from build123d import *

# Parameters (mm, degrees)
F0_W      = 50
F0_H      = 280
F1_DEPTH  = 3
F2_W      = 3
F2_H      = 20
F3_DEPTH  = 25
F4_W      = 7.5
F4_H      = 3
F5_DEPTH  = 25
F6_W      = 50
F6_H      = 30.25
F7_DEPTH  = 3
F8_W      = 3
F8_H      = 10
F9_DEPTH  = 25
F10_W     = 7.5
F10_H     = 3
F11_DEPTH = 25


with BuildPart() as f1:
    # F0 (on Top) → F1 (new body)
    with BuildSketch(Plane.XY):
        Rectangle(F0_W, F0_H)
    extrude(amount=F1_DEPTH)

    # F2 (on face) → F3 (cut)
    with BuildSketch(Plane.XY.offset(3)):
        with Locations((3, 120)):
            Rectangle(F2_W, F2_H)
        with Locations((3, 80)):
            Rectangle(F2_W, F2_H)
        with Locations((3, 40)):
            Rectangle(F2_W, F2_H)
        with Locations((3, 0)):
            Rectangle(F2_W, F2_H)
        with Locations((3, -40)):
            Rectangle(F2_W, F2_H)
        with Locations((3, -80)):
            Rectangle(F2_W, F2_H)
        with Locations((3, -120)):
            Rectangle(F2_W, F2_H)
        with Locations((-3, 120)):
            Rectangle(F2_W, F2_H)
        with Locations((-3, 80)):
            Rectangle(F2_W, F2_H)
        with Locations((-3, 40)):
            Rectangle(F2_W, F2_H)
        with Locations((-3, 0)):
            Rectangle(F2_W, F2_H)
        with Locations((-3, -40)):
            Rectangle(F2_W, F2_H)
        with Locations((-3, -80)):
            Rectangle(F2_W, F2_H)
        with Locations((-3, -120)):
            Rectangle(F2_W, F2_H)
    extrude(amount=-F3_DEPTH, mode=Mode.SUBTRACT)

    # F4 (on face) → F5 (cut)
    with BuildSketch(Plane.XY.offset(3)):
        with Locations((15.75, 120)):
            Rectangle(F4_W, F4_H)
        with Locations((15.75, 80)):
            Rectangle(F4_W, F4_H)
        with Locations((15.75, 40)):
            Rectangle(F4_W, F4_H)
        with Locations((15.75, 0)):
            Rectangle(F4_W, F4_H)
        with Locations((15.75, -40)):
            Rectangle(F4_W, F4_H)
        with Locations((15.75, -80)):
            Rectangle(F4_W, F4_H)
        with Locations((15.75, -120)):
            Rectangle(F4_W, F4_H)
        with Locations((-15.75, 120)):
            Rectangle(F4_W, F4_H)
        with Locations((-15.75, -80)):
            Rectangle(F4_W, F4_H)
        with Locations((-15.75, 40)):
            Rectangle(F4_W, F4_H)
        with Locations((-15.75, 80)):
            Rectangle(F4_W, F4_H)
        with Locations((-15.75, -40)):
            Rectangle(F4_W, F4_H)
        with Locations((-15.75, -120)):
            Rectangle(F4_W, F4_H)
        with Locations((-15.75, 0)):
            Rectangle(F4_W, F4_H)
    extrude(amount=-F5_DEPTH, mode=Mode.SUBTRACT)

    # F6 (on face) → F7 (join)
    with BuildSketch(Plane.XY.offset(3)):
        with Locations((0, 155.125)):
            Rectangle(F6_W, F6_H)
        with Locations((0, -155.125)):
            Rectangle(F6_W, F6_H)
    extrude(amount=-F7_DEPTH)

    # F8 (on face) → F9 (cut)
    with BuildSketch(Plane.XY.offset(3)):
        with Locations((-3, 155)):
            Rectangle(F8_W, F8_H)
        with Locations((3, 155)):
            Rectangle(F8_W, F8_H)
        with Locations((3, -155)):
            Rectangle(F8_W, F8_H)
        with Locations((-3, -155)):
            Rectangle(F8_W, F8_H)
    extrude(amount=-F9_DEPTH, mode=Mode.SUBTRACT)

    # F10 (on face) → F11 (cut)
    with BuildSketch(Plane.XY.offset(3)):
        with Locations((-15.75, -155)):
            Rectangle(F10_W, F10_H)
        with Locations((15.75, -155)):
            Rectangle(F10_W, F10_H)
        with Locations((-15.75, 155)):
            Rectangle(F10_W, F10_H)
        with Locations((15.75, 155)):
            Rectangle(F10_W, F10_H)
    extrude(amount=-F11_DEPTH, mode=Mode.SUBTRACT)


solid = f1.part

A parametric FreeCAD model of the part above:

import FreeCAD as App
import Part
import Sketcher
from FreeCAD import Vector
Q = App.Units.Quantity

doc = App.newDocument("Part")
body = doc.addObject("PartDesign::Body", "Body")

# Sketch on XY plane
sketch1 = body.newObject("Sketcher::SketchObject", "Sketch")
sketch1.AttachmentSupport = (doc.getObject("XY_Plane"), [""])
sketch1.MapMode = "FlatFace"
sketch1.addGeometry([
    Part.LineSegment(Vector(-25, 140, 0), Vector(-25, -140, 0)),
    Part.LineSegment(Vector(-25, -140, 0), Vector(25, -140, 0)),
    Part.LineSegment(Vector(25, -140, 0), Vector(25, 140, 0)),
    Part.LineSegment(Vector(25, 140, 0), Vector(-25, 140, 0)),
], False)
sketch1.addConstraint([
    Sketcher.Constraint("Coincident", 0, 2, 1, 1),
    Sketcher.Constraint("Coincident", 1, 2, 2, 1),
    Sketcher.Constraint("Coincident", 2, 2, 3, 1),
    Sketcher.Constraint("Coincident", 3, 2, 0, 1),
    Sketcher.Constraint("Vertical", 0),
    Sketcher.Constraint("Horizontal", 1),
    Sketcher.Constraint("Vertical", 2),
    Sketcher.Constraint("Horizontal", 3),
    Sketcher.Constraint("Symmetric", 0, 2, 2, 2, -1, 1),
    Sketcher.Constraint("DistanceX", 1, 1, 1, 2, Q("50 mm")),
    Sketcher.Constraint("DistanceY", 0, 2, 0, 1, Q("280 mm")),
])
pad1 = body.newObject("PartDesign::Pad", "Pad")
pad1.Profile = sketch1
pad1.Length = 3

# Sketch on XY plane
sketch2 = body.newObject("Sketcher::SketchObject", "Sketch001")
sketch2.AttachmentSupport = (doc.getObject("XY_Plane"), [""])
sketch2.MapMode = "FlatFace"
sketch2.AttachmentOffset = App.Placement(Vector(0, 0, 3), App.Rotation())
sketch2.addGeometry([
    Part.LineSegment(Vector(1.5, 130, 0), Vector(1.5, 110, 0)),  # 0
    Part.LineSegment(Vector(1.5, 110, 0), Vector(4.5, 110, 0)),  # 1
    Part.LineSegment(Vector(4.5, 110, 0), Vector(4.5, 130, 0)),  # 2
    Part.LineSegment(Vector(4.5, 130, 0), Vector(1.5, 130, 0)),  # 3
    Part.LineSegment(Vector(1.5, 90, 0), Vector(1.5, 70, 0)),  # 4
    Part.LineSegment(Vector(1.5, 70, 0), Vector(4.5, 70, 0)),  # 5
    Part.LineSegment(Vector(4.5, 70, 0), Vector(4.5, 90, 0)),  # 6
    Part.LineSegment(Vector(4.5, 90, 0), Vector(1.5, 90, 0)),  # 7
    Part.LineSegment(Vector(1.5, 50, 0), Vector(1.5, 30, 0)),  # 8
    Part.LineSegment(Vector(1.5, 30, 0), Vector(4.5, 30, 0)),  # 9
    Part.LineSegment(Vector(4.5, 30, 0), Vector(4.5, 50, 0)),  # 10
    Part.LineSegment(Vector(4.5, 50, 0), Vector(1.5, 50, 0)),  # 11
    Part.LineSegment(Vector(1.5, 10, 0), Vector(1.5, -10, 0)),  # 12
    Part.LineSegment(Vector(1.5, -10, 0), Vector(4.5, -10, 0)),  # 13
    Part.LineSegment(Vector(4.5, -10, 0), Vector(4.5, 10, 0)),  # 14
    Part.LineSegment(Vector(4.5, 10, 0), Vector(1.5, 10, 0)),  # 15
    Part.LineSegment(Vector(1.5, -30, 0), Vector(1.5, -50, 0)),  # 16
    Part.LineSegment(Vector(1.5, -50, 0), Vector(4.5, -50, 0)),  # 17
    Part.LineSegment(Vector(4.5, -50, 0), Vector(4.5, -30, 0)),  # 18
    Part.LineSegment(Vector(4.5, -30, 0), Vector(1.5, -30, 0)),  # 19
    Part.LineSegment(Vector(1.5, -70, 0), Vector(1.5, -90, 0)),  # 20
    Part.LineSegment(Vector(1.5, -90, 0), Vector(4.5, -90, 0)),  # 21
    Part.LineSegment(Vector(4.5, -90, 0), Vector(4.5, -70, 0)),  # 22
    Part.LineSegment(Vector(4.5, -70, 0), Vector(1.5, -70, 0)),  # 23
    Part.LineSegment(Vector(1.5, -110, 0), Vector(1.5, -130, 0)),  # 24
    Part.LineSegment(Vector(1.5, -130, 0), Vector(4.5, -130, 0)),  # 25
    Part.LineSegment(Vector(4.5, -130, 0), Vector(4.5, -110, 0)),  # 26
    Part.LineSegment(Vector(4.5, -110, 0), Vector(1.5, -110, 0)),  # 27
    Part.LineSegment(Vector(-4.5, 130, 0), Vector(-4.5, 110, 0)),  # 28
    Part.LineSegment(Vector(-4.5, 110, 0), Vector(-1.5, 110, 0)),  # 29
    Part.LineSegment(Vector(-1.5, 110, 0), Vector(-1.5, 130, 0)),  # 30
    Part.LineSegment(Vector(-1.5, 130, 0), Vector(-4.5, 130, 0)),  # 31
    Part.LineSegment(Vector(-4.5, 90, 0), Vector(-4.5, 70, 0)),  # 32
    Part.LineSegment(Vector(-4.5, 70, 0), Vector(-1.5, 70, 0)),  # 33
    Part.LineSegment(Vector(-1.5, 70, 0), Vector(-1.5, 90, 0)),  # 34
    Part.LineSegment(Vector(-1.5, 90, 0), Vector(-4.5, 90, 0)),  # 35
    Part.LineSegment(Vector(-4.5, 50, 0), Vector(-4.5, 30, 0)),  # 36
    Part.LineSegment(Vector(-4.5, 30, 0), Vector(-1.5, 30, 0)),  # 37
    Part.LineSegment(Vector(-1.5, 30, 0), Vector(-1.5, 50, 0)),  # 38
    Part.LineSegment(Vector(-1.5, 50, 0), Vector(-4.5, 50, 0)),  # 39
    Part.LineSegment(Vector(-4.5, 10, 0), Vector(-4.5, -10, 0)),  # 40
    Part.LineSegment(Vector(-4.5, -10, 0), Vector(-1.5, -10, 0)),  # 41
    Part.LineSegment(Vector(-1.5, -10, 0), Vector(-1.5, 10, 0)),  # 42
    Part.LineSegment(Vector(-1.5, 10, 0), Vector(-4.5, 10, 0)),  # 43
    Part.LineSegment(Vector(-4.5, -30, 0), Vector(-4.5, -50, 0)),  # 44
    Part.LineSegment(Vector(-4.5, -50, 0), Vector(-1.5, -50, 0)),  # 45
    Part.LineSegment(Vector(-1.5, -50, 0), Vector(-1.5, -30, 0)),  # 46
    Part.LineSegment(Vector(-1.5, -30, 0), Vector(-4.5, -30, 0)),  # 47
    Part.LineSegment(Vector(-4.5, -70, 0), Vector(-4.5, -90, 0)),  # 48
    Part.LineSegment(Vector(-4.5, -90, 0), Vector(-1.5, -90, 0)),  # 49
    Part.LineSegment(Vector(-1.5, -90, 0), Vector(-1.5, -70, 0)),  # 50
    Part.LineSegment(Vector(-1.5, -70, 0), Vector(-4.5, -70, 0)),  # 51
    Part.LineSegment(Vector(-4.5, -110, 0), Vector(-4.5, -130, 0)),  # 52
    Part.LineSegment(Vector(-4.5, -130, 0), Vector(-1.5, -130, 0)),  # 53
    Part.LineSegment(Vector(-1.5, -130, 0), Vector(-1.5, -110, 0)),  # 54
    Part.LineSegment(Vector(-1.5, -110, 0), Vector(-4.5, -110, 0)),  # 55
], False)
sketch2.addConstraint([
    Sketcher.Constraint("Coincident", 0, 2, 1, 1),
    Sketcher.Constraint("Coincident", 1, 2, 2, 1),
    Sketcher.Constraint("Coincident", 2, 2, 3, 1),
    Sketcher.Constraint("Coincident", 3, 2, 0, 1),
    Sketcher.Constraint("Coincident", 4, 2, 5, 1),
    Sketcher.Constraint("Coincident", 5, 2, 6, 1),
    Sketcher.Constraint("Coincident", 6, 2, 7, 1),
    Sketcher.Constraint("Coincident", 7, 2, 4, 1),
    Sketcher.Constraint("Coincident", 8, 2, 9, 1),
    Sketcher.Constraint("Coincident", 9, 2, 10, 1),
    Sketcher.Constraint("Coincident", 10, 2, 11, 1),
    Sketcher.Constraint("Coincident", 11, 2, 8, 1),
    Sketcher.Constraint("Coincident", 12, 2, 13, 1),
    Sketcher.Constraint("Coincident", 13, 2, 14, 1),
    Sketcher.Constraint("Coincident", 14, 2, 15, 1),
    Sketcher.Constraint("Coincident", 15, 2, 12, 1),
    Sketcher.Constraint("Coincident", 16, 2, 17, 1),
    Sketcher.Constraint("Coincident", 17, 2, 18, 1),
    Sketcher.Constraint("Coincident", 18, 2, 19, 1),
    Sketcher.Constraint("Coincident", 19, 2, 16, 1),
    Sketcher.Constraint("Coincident", 20, 2, 21, 1),
    Sketcher.Constraint("Coincident", 21, 2, 22, 1),
    Sketcher.Constraint("Coincident", 22, 2, 23, 1),
    Sketcher.Constraint("Coincident", 23, 2, 20, 1),
    Sketcher.Constraint("Coincident", 24, 2, 25, 1),
    Sketcher.Constraint("Coincident", 25, 2, 26, 1),
    Sketcher.Constraint("Coincident", 26, 2, 27, 1),
    Sketcher.Constraint("Coincident", 27, 2, 24, 1),
    Sketcher.Constraint("Coincident", 28, 2, 29, 1),
    Sketcher.Constraint("Coincident", 29, 2, 30, 1),
    Sketcher.Constraint("Coincident", 30, 2, 31, 1),
    Sketcher.Constraint("Coincident", 31, 2, 28, 1),
    Sketcher.Constraint("Coincident", 32, 2, 33, 1),
    Sketcher.Constraint("Coincident", 33, 2, 34, 1),
    Sketcher.Constraint("Coincident", 34, 2, 35, 1),
    Sketcher.Constraint("Coincident", 35, 2, 32, 1),
    Sketcher.Constraint("Coincident", 36, 2, 37, 1),
    Sketcher.Constraint("Coincident", 37, 2, 38, 1),
    Sketcher.Constraint("Coincident", 38, 2, 39, 1),
    Sketcher.Constraint("Coincident", 39, 2, 36, 1),
    Sketcher.Constraint("Coincident", 40, 2, 41, 1),
    Sketcher.Constraint("Coincident", 41, 2, 42, 1),
    Sketcher.Constraint("Coincident", 42, 2, 43, 1),
    Sketcher.Constraint("Coincident", 43, 2, 40, 1),
    Sketcher.Constraint("Coincident", 44, 2, 45, 1),
    Sketcher.Constraint("Coincident", 45, 2, 46, 1),
    Sketcher.Constraint("Coincident", 46, 2, 47, 1),
    Sketcher.Constraint("Coincident", 47, 2, 44, 1),
    Sketcher.Constraint("Coincident", 48, 2, 49, 1),
    Sketcher.Constraint("Coincident", 49, 2, 50, 1),
    Sketcher.Constraint("Coincident", 50, 2, 51, 1),
    Sketcher.Constraint("Coincident", 51, 2, 48, 1),
    Sketcher.Constraint("Coincident", 52, 2, 53, 1),
    Sketcher.Constraint("Coincident", 53, 2, 54, 1),
    Sketcher.Constraint("Coincident", 54, 2, 55, 1),
    Sketcher.Constraint("Coincident", 55, 2, 52, 1),
    Sketcher.Constraint("Vertical", 0),
    Sketcher.Constraint("Horizontal", 1),
    Sketcher.Constraint("Vertical", 2),
    Sketcher.Constraint("Horizontal", 3),
    Sketcher.Constraint("Vertical", 4),
    Sketcher.Constraint("Horizontal", 5),
    Sketcher.Constraint("Vertical", 6),
    Sketcher.Constraint("Horizontal", 7),
    Sketcher.Constraint("Vertical", 8),
    Sketcher.Constraint("Horizontal", 9),
    Sketcher.Constraint("Vertical", 10),
    Sketcher.Constraint("Horizontal", 11),
    Sketcher.Constraint("Vertical", 12),
    Sketcher.Constraint("Horizontal", 13),
    Sketcher.Constraint("Vertical", 14),
    Sketcher.Constraint("Horizontal", 15),
    Sketcher.Constraint("Vertical", 16),
    Sketcher.Constraint("Horizontal", 17),
    Sketcher.Constraint("Vertical", 18),
    Sketcher.Constraint("Horizontal", 19),
    Sketcher.Constraint("Vertical", 20),
    Sketcher.Constraint("Horizontal", 21),
    Sketcher.Constraint("Vertical", 22),
    Sketcher.Constraint("Horizontal", 23),
    Sketcher.Constraint("Vertical", 24),
    Sketcher.Constraint("Horizontal", 25),
    Sketcher.Constraint("Vertical", 26),
    Sketcher.Constraint("Horizontal", 27),
    Sketcher.Constraint("Vertical", 28),
    Sketcher.Constraint("Horizontal", 29),
    Sketcher.Constraint("Vertical", 30),
    Sketcher.Constraint("Horizontal", 31),
    Sketcher.Constraint("Vertical", 32),
    Sketcher.Constraint("Horizontal", 33),
    Sketcher.Constraint("Vertical", 34),
    Sketcher.Constraint("Horizontal", 35),
    Sketcher.Constraint("Vertical", 36),
    Sketcher.Constraint("Horizontal", 37),
    Sketcher.Constraint("Vertical", 38),
    Sketcher.Constraint("Horizontal", 39),
    Sketcher.Constraint("Vertical", 40),
    Sketcher.Constraint("Horizontal", 41),
    Sketcher.Constraint("Vertical", 42),
    Sketcher.Constraint("Horizontal", 43),
    Sketcher.Constraint("Vertical", 44),
    Sketcher.Constraint("Horizontal", 45),
    Sketcher.Constraint("Vertical", 46),
    Sketcher.Constraint("Horizontal", 47),
    Sketcher.Constraint("Vertical", 48),
    Sketcher.Constraint("Horizontal", 49),
    Sketcher.Constraint("Vertical", 50),
    Sketcher.Constraint("Horizontal", 51),
    Sketcher.Constraint("Vertical", 52),
    Sketcher.Constraint("Horizontal", 53),
    Sketcher.Constraint("Vertical", 54),
    Sketcher.Constraint("Horizontal", 55),
    Sketcher.Constraint("Symmetric", 26, 2, 28, 2, -1, 1),
    Sketcher.Constraint("Symmetric", 24, 2, 30, 2, -1, 1),
    Sketcher.Constraint("Symmetric", 22, 2, 32, 2, -1, 1),
    Sketcher.Constraint("Symmetric", 20, 2, 34, 2, -1, 1),
    Sketcher.Constraint("Symmetric", 18, 2, 36, 2, -1, 1),
    Sketcher.Constraint("Symmetric", 16, 2, 38, 2, -1, 1),
    Sketcher.Constraint("Symmetric", 14, 2, 40, 2, -1, 1),
    Sketcher.Constraint("Symmetric", 12, 2, 42, 2, -1, 1),
    Sketcher.Constraint("Symmetric", 10, 2, 44, 2, -1, 1),
    Sketcher.Constraint("Symmetric", 8, 2, 46, 2, -1, 1),
    Sketcher.Constraint("Symmetric", 6, 2, 48, 2, -1, 1),
    Sketcher.Constraint("Symmetric", 4, 2, 50, 2, -1, 1),
    Sketcher.Constraint("Symmetric", 2, 2, 52, 2, -1, 1),
    Sketcher.Constraint("Symmetric", 0, 2, 54, 2, -1, 1),
    Sketcher.Constraint("Symmetric", 1, 2, 28, 2, -2),
    Sketcher.Constraint("Symmetric", 3, 2, 30, 2, -2),
    Sketcher.Constraint("Symmetric", 5, 2, 32, 2, -2),
    Sketcher.Constraint("Symmetric", 7, 2, 34, 2, -2),
    Sketcher.Constraint("Symmetric", 9, 2, 36, 2, -2),
    Sketcher.Constraint("Symmetric", 11, 2, 38, 2, -2),
    Sketcher.Constraint("Horizontal", 13, 2, 40, 2),
    Sketcher.Constraint("Vertical", 3, 2, 4, 2),
    Sketcher.Constraint("Vertical", 2, 2, 5, 2),
    Sketcher.Constraint("Vertical", 7, 2, 8, 2),
    Sketcher.Constraint("Vertical", 6, 2, 9, 2),
    Sketcher.Constraint("Vertical", 11, 2, 12, 2),
    Sketcher.Constraint("Vertical", 10, 2, 13, 2),
    Sketcher.Constraint("Equal", 2, 4),
    Sketcher.Constraint("Equal", 6, 8),
    Sketcher.Constraint("Equal", 10, 12),
    Sketcher.Constraint("DistanceX", 1, 1, 1, 2, Q("3 mm")),
    Sketcher.Constraint("DistanceY", 0, 2, 0, 1, Q("20 mm")),
    Sketcher.Constraint("DistanceY", -1, 1, 0, 2, Q("110 mm")),
    Sketcher.Constraint("DistanceY", -1, 1, 4, 2, Q("70 mm")),
    Sketcher.Constraint("DistanceY", -1, 1, 8, 2, Q("30 mm")),
    Sketcher.Constraint("DistanceX", 28, 2, 0, 2, Q("6 mm")),
])
pocket1 = body.newObject("PartDesign::Pocket", "Pocket")
pocket1.Profile = sketch2
pocket1.Length = 25

# Sketch on XY plane
sketch3 = body.newObject("Sketcher::SketchObject", "Sketch002")
sketch3.AttachmentSupport = (doc.getObject("XY_Plane"), [""])
sketch3.MapMode = "FlatFace"
sketch3.AttachmentOffset = App.Placement(Vector(0, 0, 3), App.Rotation())
sketch3.addGeometry([
    Part.LineSegment(Vector(12, 121.5, 0), Vector(12, 118.5, 0)),  # 0
    Part.LineSegment(Vector(12, 118.5, 0), Vector(19.5, 118.5, 0)),  # 1
    Part.LineSegment(Vector(19.5, 118.5, 0), Vector(19.5, 121.5, 0)),  # 2
    Part.LineSegment(Vector(19.5, 121.5, 0), Vector(12, 121.5, 0)),  # 3
    Part.LineSegment(Vector(12, 81.5, 0), Vector(12, 78.5, 0)),  # 4
    Part.LineSegment(Vector(12, 78.5, 0), Vector(19.5, 78.5, 0)),  # 5
    Part.LineSegment(Vector(19.5, 78.5, 0), Vector(19.5, 81.5, 0)),  # 6
    Part.LineSegment(Vector(19.5, 81.5, 0), Vector(12, 81.5, 0)),  # 7
    Part.LineSegment(Vector(12, 41.5, 0), Vector(12, 38.5, 0)),  # 8
    Part.LineSegment(Vector(12, 38.5, 0), Vector(19.5, 38.5, 0)),  # 9
    Part.LineSegment(Vector(19.5, 38.5, 0), Vector(19.5, 41.5, 0)),  # 10
    Part.LineSegment(Vector(19.5, 41.5, 0), Vector(12, 41.5, 0)),  # 11
    Part.LineSegment(Vector(12, 1.5, 0), Vector(12, -1.5, 0)),  # 12
    Part.LineSegment(Vector(12, -1.5, 0), Vector(19.5, -1.5, 0)),  # 13
    Part.LineSegment(Vector(19.5, -1.5, 0), Vector(19.5, 1.5, 0)),  # 14
    Part.LineSegment(Vector(19.5, 1.5, 0), Vector(12, 1.5, 0)),  # 15
    Part.LineSegment(Vector(12, -38.5, 0), Vector(12, -41.5, 0)),  # 16
    Part.LineSegment(Vector(12, -41.5, 0), Vector(19.5, -41.5, 0)),  # 17
    Part.LineSegment(Vector(19.5, -41.5, 0), Vector(19.5, -38.5, 0)),  # 18
    Part.LineSegment(Vector(19.5, -38.5, 0), Vector(12, -38.5, 0)),  # 19
    Part.LineSegment(Vector(12, -78.5, 0), Vector(12, -81.5, 0)),  # 20
    Part.LineSegment(Vector(12, -81.5, 0), Vector(19.5, -81.5, 0)),  # 21
    Part.LineSegment(Vector(19.5, -81.5, 0), Vector(19.5, -78.5, 0)),  # 22
    Part.LineSegment(Vector(19.5, -78.5, 0), Vector(12, -78.5, 0)),  # 23
    Part.LineSegment(Vector(12, -118.5, 0), Vector(12, -121.5, 0)),  # 24
    Part.LineSegment(Vector(12, -121.5, 0), Vector(19.5, -121.5, 0)),  # 25
    Part.LineSegment(Vector(19.5, -121.5, 0), Vector(19.5, -118.5, 0)),  # 26
    Part.LineSegment(Vector(19.5, -118.5, 0), Vector(12, -118.5, 0)),  # 27
    Part.LineSegment(Vector(-19.5, 121.5, 0), Vector(-19.5, 118.5, 0)),  # 28
    Part.LineSegment(Vector(-19.5, 118.5, 0), Vector(-12, 118.5, 0)),  # 29
    Part.LineSegment(Vector(-12, 118.5, 0), Vector(-12, 121.5, 0)),  # 30
    Part.LineSegment(Vector(-12, 121.5, 0), Vector(-19.5, 121.5, 0)),  # 31
    Part.LineSegment(Vector(-19.5, -78.5, 0), Vector(-19.5, -81.5, 0)),  # 32
    Part.LineSegment(Vector(-19.5, -81.5, 0), Vector(-12, -81.5, 0)),  # 33
    Part.LineSegment(Vector(-12, -81.5, 0), Vector(-12, -78.5, 0)),  # 34
    Part.LineSegment(Vector(-12, -78.5, 0), Vector(-19.5, -78.5, 0)),  # 35
    Part.LineSegment(Vector(-19.5, 41.5, 0), Vector(-19.5, 38.5, 0)),  # 36
    Part.LineSegment(Vector(-19.5, 38.5, 0), Vector(-12, 38.5, 0)),  # 37
    Part.LineSegment(Vector(-12, 38.5, 0), Vector(-12, 41.5, 0)),  # 38
    Part.LineSegment(Vector(-12, 41.5, 0), Vector(-19.5, 41.5, 0)),  # 39
    Part.LineSegment(Vector(-19.5, 81.5, 0), Vector(-19.5, 78.5, 0)),  # 40
    Part.LineSegment(Vector(-19.5, 78.5, 0), Vector(-12, 78.5, 0)),  # 41
    Part.LineSegment(Vector(-12, 78.5, 0), Vector(-12, 81.5, 0)),  # 42
    Part.LineSegment(Vector(-12, 81.5, 0), Vector(-19.5, 81.5, 0)),  # 43
    Part.LineSegment(Vector(-19.5, -38.5, 0), Vector(-19.5, -41.5, 0)),  # 44
    Part.LineSegment(Vector(-19.5, -41.5, 0), Vector(-12, -41.5, 0)),  # 45
    Part.LineSegment(Vector(-12, -41.5, 0), Vector(-12, -38.5, 0)),  # 46
    Part.LineSegment(Vector(-12, -38.5, 0), Vector(-19.5, -38.5, 0)),  # 47
    Part.LineSegment(Vector(-19.5, -118.5, 0), Vector(-19.5, -121.5, 0)),  # 48
    Part.LineSegment(Vector(-19.5, -121.5, 0), Vector(-12, -121.5, 0)),  # 49
    Part.LineSegment(Vector(-12, -121.5, 0), Vector(-12, -118.5, 0)),  # 50
    Part.LineSegment(Vector(-12, -118.5, 0), Vector(-19.5, -118.5, 0)),  # 51
    Part.LineSegment(Vector(-19.5, 1.5, 0), Vector(-19.5, -1.5, 0)),  # 52
    Part.LineSegment(Vector(-19.5, -1.5, 0), Vector(-12, -1.5, 0)),  # 53
    Part.LineSegment(Vector(-12, -1.5, 0), Vector(-12, 1.5, 0)),  # 54
    Part.LineSegment(Vector(-12, 1.5, 0), Vector(-19.5, 1.5, 0)),  # 55
], False)
sketch3.addConstraint([
    Sketcher.Constraint("Coincident", 0, 2, 1, 1),
    Sketcher.Constraint("Coincident", 1, 2, 2, 1),
    Sketcher.Constraint("Coincident", 2, 2, 3, 1),
    Sketcher.Constraint("Coincident", 3, 2, 0, 1),
    Sketcher.Constraint("Coincident", 4, 2, 5, 1),
    Sketcher.Constraint("Coincident", 5, 2, 6, 1),
    Sketcher.Constraint("Coincident", 6, 2, 7, 1),
    Sketcher.Constraint("Coincident", 7, 2, 4, 1),
    Sketcher.Constraint("Coincident", 8, 2, 9, 1),
    Sketcher.Constraint("Coincident", 9, 2, 10, 1),
    Sketcher.Constraint("Coincident", 10, 2, 11, 1),
    Sketcher.Constraint("Coincident", 11, 2, 8, 1),
    Sketcher.Constraint("Coincident", 12, 2, 13, 1),
    Sketcher.Constraint("Coincident", 13, 2, 14, 1),
    Sketcher.Constraint("Coincident", 14, 2, 15, 1),
    Sketcher.Constraint("Coincident", 15, 2, 12, 1),
    Sketcher.Constraint("Coincident", 16, 2, 17, 1),
    Sketcher.Constraint("Coincident", 17, 2, 18, 1),
    Sketcher.Constraint("Coincident", 18, 2, 19, 1),
    Sketcher.Constraint("Coincident", 19, 2, 16, 1),
    Sketcher.Constraint("Coincident", 20, 2, 21, 1),
    Sketcher.Constraint("Coincident", 21, 2, 22, 1),
    Sketcher.Constraint("Coincident", 22, 2, 23, 1),
    Sketcher.Constraint("Coincident", 23, 2, 20, 1),
    Sketcher.Constraint("Coincident", 24, 2, 25, 1),
    Sketcher.Constraint("Coincident", 25, 2, 26, 1),
    Sketcher.Constraint("Coincident", 26, 2, 27, 1),
    Sketcher.Constraint("Coincident", 27, 2, 24, 1),
    Sketcher.Constraint("Coincident", 28, 2, 29, 1),
    Sketcher.Constraint("Coincident", 29, 2, 30, 1),
    Sketcher.Constraint("Coincident", 30, 2, 31, 1),
    Sketcher.Constraint("Coincident", 31, 2, 28, 1),
    Sketcher.Constraint("Coincident", 32, 2, 33, 1),
    Sketcher.Constraint("Coincident", 33, 2, 34, 1),
    Sketcher.Constraint("Coincident", 34, 2, 35, 1),
    Sketcher.Constraint("Coincident", 35, 2, 32, 1),
    Sketcher.Constraint("Coincident", 36, 2, 37, 1),
    Sketcher.Constraint("Coincident", 37, 2, 38, 1),
    Sketcher.Constraint("Coincident", 38, 2, 39, 1),
    Sketcher.Constraint("Coincident", 39, 2, 36, 1),
    Sketcher.Constraint("Coincident", 40, 2, 41, 1),
    Sketcher.Constraint("Coincident", 41, 2, 42, 1),
    Sketcher.Constraint("Coincident", 42, 2, 43, 1),
    Sketcher.Constraint("Coincident", 43, 2, 40, 1),
    Sketcher.Constraint("Coincident", 44, 2, 45, 1),
    Sketcher.Constraint("Coincident", 45, 2, 46, 1),
    Sketcher.Constraint("Coincident", 46, 2, 47, 1),
    Sketcher.Constraint("Coincident", 47, 2, 44, 1),
    Sketcher.Constraint("Coincident", 48, 2, 49, 1),
    Sketcher.Constraint("Coincident", 49, 2, 50, 1),
    Sketcher.Constraint("Coincident", 50, 2, 51, 1),
    Sketcher.Constraint("Coincident", 51, 2, 48, 1),
    Sketcher.Constraint("Coincident", 52, 2, 53, 1),
    Sketcher.Constraint("Coincident", 53, 2, 54, 1),
    Sketcher.Constraint("Coincident", 54, 2, 55, 1),
    Sketcher.Constraint("Coincident", 55, 2, 52, 1),
    Sketcher.Constraint("Vertical", 0),
    Sketcher.Constraint("Horizontal", 1),
    Sketcher.Constraint("Vertical", 2),
    Sketcher.Constraint("Horizontal", 3),
    Sketcher.Constraint("Vertical", 4),
    Sketcher.Constraint("Horizontal", 5),
    Sketcher.Constraint("Vertical", 6),
    Sketcher.Constraint("Horizontal", 7),
    Sketcher.Constraint("Vertical", 8),
    Sketcher.Constraint("Horizontal", 9),
    Sketcher.Constraint("Vertical", 10),
    Sketcher.Constraint("Horizontal", 11),
    Sketcher.Constraint("Vertical", 12),
    Sketcher.Constraint("Horizontal", 13),
    Sketcher.Constraint("Vertical", 14),
    Sketcher.Constraint("Horizontal", 15),
    Sketcher.Constraint("Vertical", 16),
    Sketcher.Constraint("Horizontal", 17),
    Sketcher.Constraint("Vertical", 18),
    Sketcher.Constraint("Horizontal", 19),
    Sketcher.Constraint("Vertical", 20),
    Sketcher.Constraint("Horizontal", 21),
    Sketcher.Constraint("Vertical", 22),
    Sketcher.Constraint("Horizontal", 23),
    Sketcher.Constraint("Vertical", 24),
    Sketcher.Constraint("Horizontal", 25),
    Sketcher.Constraint("Vertical", 26),
    Sketcher.Constraint("Horizontal", 27),
    Sketcher.Constraint("Vertical", 28),
    Sketcher.Constraint("Horizontal", 29),
    Sketcher.Constraint("Vertical", 30),
    Sketcher.Constraint("Horizontal", 31),
    Sketcher.Constraint("Vertical", 32),
    Sketcher.Constraint("Horizontal", 33),
    Sketcher.Constraint("Vertical", 34),
    Sketcher.Constraint("Horizontal", 35),
    Sketcher.Constraint("Vertical", 36),
    Sketcher.Constraint("Horizontal", 37),
    Sketcher.Constraint("Vertical", 38),
    Sketcher.Constraint("Horizontal", 39),
    Sketcher.Constraint("Vertical", 40),
    Sketcher.Constraint("Horizontal", 41),
    Sketcher.Constraint("Vertical", 42),
    Sketcher.Constraint("Horizontal", 43),
    Sketcher.Constraint("Vertical", 44),
    Sketcher.Constraint("Horizontal", 45),
    Sketcher.Constraint("Vertical", 46),
    Sketcher.Constraint("Horizontal", 47),
    Sketcher.Constraint("Vertical", 48),
    Sketcher.Constraint("Horizontal", 49),
    Sketcher.Constraint("Vertical", 50),
    Sketcher.Constraint("Horizontal", 51),
    Sketcher.Constraint("Vertical", 52),
    Sketcher.Constraint("Horizontal", 53),
    Sketcher.Constraint("Vertical", 54),
    Sketcher.Constraint("Horizontal", 55),
    Sketcher.Constraint("Symmetric", 26, 2, 28, 2, -1, 1),
    Sketcher.Constraint("Symmetric", 24, 2, 30, 2, -1, 1),
    Sketcher.Constraint("Symmetric", 6, 2, 32, 2, -1, 1),
    Sketcher.Constraint("Symmetric", 4, 2, 34, 2, -1, 1),
    Sketcher.Constraint("Symmetric", 18, 2, 36, 2, -1, 1),
    Sketcher.Constraint("Symmetric", 16, 2, 38, 2, -1, 1),
    Sketcher.Constraint("Symmetric", 22, 2, 40, 2, -1, 1),
    Sketcher.Constraint("Symmetric", 20, 2, 42, 2, -1, 1),
    Sketcher.Constraint("Symmetric", 10, 2, 44, 2, -1, 1),
    Sketcher.Constraint("Symmetric", 8, 2, 46, 2, -1, 1),
    Sketcher.Constraint("Symmetric", 2, 2, 48, 2, -1, 1),
    Sketcher.Constraint("Symmetric", 0, 2, 50, 2, -1, 1),
    Sketcher.Constraint("Symmetric", 14, 2, 52, 2, -1, 1),
    Sketcher.Constraint("Symmetric", 12, 2, 54, 2, -1, 1),
    Sketcher.Constraint("Symmetric", 1, 2, 28, 2, -2),
    Sketcher.Constraint("Symmetric", 3, 2, 30, 2, -2),
    Sketcher.Constraint("Symmetric", 21, 2, 32, 2, -2),
    Sketcher.Constraint("Symmetric", 23, 2, 34, 2, -2),
    Sketcher.Constraint("Symmetric", 9, 2, 36, 2, -2),
    Sketcher.Constraint("Symmetric", 11, 2, 38, 2, -2),
    Sketcher.Constraint("Horizontal", 13, 2, 52, 2),
    Sketcher.Constraint("Vertical", 3, 2, 4, 2),
    Sketcher.Constraint("Vertical", 2, 2, 5, 2),
    Sketcher.Constraint("Vertical", 7, 2, 8, 2),
    Sketcher.Constraint("Vertical", 6, 2, 9, 2),
    Sketcher.Constraint("Vertical", 11, 2, 12, 2),
    Sketcher.Constraint("Vertical", 10, 2, 13, 2),
    Sketcher.Constraint("Equal", 2, 4),
    Sketcher.Constraint("Equal", 6, 8),
    Sketcher.Constraint("Equal", 10, 12),
    Sketcher.Constraint("DistanceY", 0, 2, 0, 1, Q("3 mm")),
    Sketcher.Constraint("DistanceX", 1, 1, 1, 2, Q("7.5 mm")),
    Sketcher.Constraint("DistanceX", -1, 1, 0, 2, Q("12 mm")),
    Sketcher.Constraint("DistanceY", 4, 2, 0, 2, Q("40 mm")),
    Sketcher.Constraint("DistanceY", 8, 2, 4, 2, Q("40 mm")),
    Sketcher.Constraint("DistanceY", 12, 2, 8, 2, Q("40 mm")),
])
pocket2 = body.newObject("PartDesign::Pocket", "Pocket001")
pocket2.Profile = sketch3
pocket2.Length = 25

# Sketch on XY plane
sketch4 = body.newObject("Sketcher::SketchObject", "Sketch003")
sketch4.AttachmentSupport = (doc.getObject("XY_Plane"), [""])
sketch4.MapMode = "FlatFace"
sketch4.AttachmentOffset = App.Placement(Vector(0, 0, 3), App.Rotation())
sketch4.addGeometry([
    Part.LineSegment(Vector(-25, 170, 0), Vector(-25, 140, 0)),  # 0
    Part.LineSegment(Vector(-25, 140, 0), Vector(25, 140, 0)),  # 1
    Part.LineSegment(Vector(25, 140, 0), Vector(25, 170, 0)),  # 2
    Part.LineSegment(Vector(25, 170, 0), Vector(-25, 170, 0)),  # 3
    Part.LineSegment(Vector(-25, -140, 0), Vector(-25, -170, 0)),  # 4
    Part.LineSegment(Vector(-25, -170, 0), Vector(25, -170, 0)),  # 5
    Part.LineSegment(Vector(25, -170, 0), Vector(25, -140, 0)),  # 6
    Part.LineSegment(Vector(25, -140, 0), Vector(-25, -140, 0)),  # 7
], False)
sketch4.addConstraint([
    Sketcher.Constraint("Coincident", 0, 2, 1, 1),
    Sketcher.Constraint("Coincident", 1, 2, 2, 1),
    Sketcher.Constraint("Coincident", 2, 2, 3, 1),
    Sketcher.Constraint("Coincident", 3, 2, 0, 1),
    Sketcher.Constraint("Coincident", 4, 2, 5, 1),
    Sketcher.Constraint("Coincident", 5, 2, 6, 1),
    Sketcher.Constraint("Coincident", 6, 2, 7, 1),
    Sketcher.Constraint("Coincident", 7, 2, 4, 1),
    Sketcher.Constraint("Vertical", 0),
    Sketcher.Constraint("Horizontal", 1),
    Sketcher.Constraint("Vertical", 2),
    Sketcher.Constraint("Horizontal", 3),
    Sketcher.Constraint("Vertical", 4),
    Sketcher.Constraint("Horizontal", 5),
    Sketcher.Constraint("Vertical", 6),
    Sketcher.Constraint("Horizontal", 7),
    Sketcher.Constraint("Symmetric", 2, 2, 4, 2, -1, 1),
    Sketcher.Constraint("Symmetric", 0, 2, 6, 2, -1, 1),
    Sketcher.Constraint("Vertical", 3, 2, 4, 2),
    Sketcher.Constraint("DistanceX", 1, 1, 1, 2, Q("50 mm")),
    Sketcher.Constraint("DistanceY", -1, 1, 0, 2, Q("140 mm")),
    Sketcher.Constraint("DistanceY", 0, 2, 0, 1, Q("30.25 mm")),
])
pad2 = body.newObject("PartDesign::Pad", "Pad001")
pad2.Profile = sketch4
pad2.Length = 3
pad2.Reversed = True

# Sketch on XY plane
sketch5 = body.newObject("Sketcher::SketchObject", "Sketch004")
sketch5.AttachmentSupport = (doc.getObject("XY_Plane"), [""])
sketch5.MapMode = "FlatFace"
sketch5.AttachmentOffset = App.Placement(Vector(0, 0, 3), App.Rotation())
sketch5.addGeometry([
    Part.LineSegment(Vector(-4.5, 160, 0), Vector(-4.5, 150, 0)),  # 0
    Part.LineSegment(Vector(-4.5, 150, 0), Vector(-1.5, 150, 0)),  # 1
    Part.LineSegment(Vector(-1.5, 150, 0), Vector(-1.5, 160, 0)),  # 2
    Part.LineSegment(Vector(-1.5, 160, 0), Vector(-4.5, 160, 0)),  # 3
    Part.LineSegment(Vector(1.5, 160, 0), Vector(1.5, 150, 0)),  # 4
    Part.LineSegment(Vector(1.5, 150, 0), Vector(4.5, 150, 0)),  # 5
    Part.LineSegment(Vector(4.5, 150, 0), Vector(4.5, 160, 0)),  # 6
    Part.LineSegment(Vector(4.5, 160, 0), Vector(1.5, 160, 0)),  # 7
    Part.LineSegment(Vector(1.5, -150, 0), Vector(1.5, -160, 0)),  # 8
    Part.LineSegment(Vector(1.5, -160, 0), Vector(4.5, -160, 0)),  # 9
    Part.LineSegment(Vector(4.5, -160, 0), Vector(4.5, -150, 0)),  # 10
    Part.LineSegment(Vector(4.5, -150, 0), Vector(1.5, -150, 0)),  # 11
    Part.LineSegment(Vector(-4.5, -150, 0), Vector(-4.5, -160, 0)),  # 12
    Part.LineSegment(Vector(-4.5, -160, 0), Vector(-1.5, -160, 0)),  # 13
    Part.LineSegment(Vector(-1.5, -160, 0), Vector(-1.5, -150, 0)),  # 14
    Part.LineSegment(Vector(-1.5, -150, 0), Vector(-4.5, -150, 0)),  # 15
], False)
sketch5.addConstraint([
    Sketcher.Constraint("Coincident", 0, 2, 1, 1),
    Sketcher.Constraint("Coincident", 1, 2, 2, 1),
    Sketcher.Constraint("Coincident", 2, 2, 3, 1),
    Sketcher.Constraint("Coincident", 3, 2, 0, 1),
    Sketcher.Constraint("Coincident", 4, 2, 5, 1),
    Sketcher.Constraint("Coincident", 5, 2, 6, 1),
    Sketcher.Constraint("Coincident", 6, 2, 7, 1),
    Sketcher.Constraint("Coincident", 7, 2, 4, 1),
    Sketcher.Constraint("Coincident", 8, 2, 9, 1),
    Sketcher.Constraint("Coincident", 9, 2, 10, 1),
    Sketcher.Constraint("Coincident", 10, 2, 11, 1),
    Sketcher.Constraint("Coincident", 11, 2, 8, 1),
    Sketcher.Constraint("Coincident", 12, 2, 13, 1),
    Sketcher.Constraint("Coincident", 13, 2, 14, 1),
    Sketcher.Constraint("Coincident", 14, 2, 15, 1),
    Sketcher.Constraint("Coincident", 15, 2, 12, 1),
    Sketcher.Constraint("Vertical", 0),
    Sketcher.Constraint("Horizontal", 1),
    Sketcher.Constraint("Vertical", 2),
    Sketcher.Constraint("Horizontal", 3),
    Sketcher.Constraint("Vertical", 4),
    Sketcher.Constraint("Horizontal", 5),
    Sketcher.Constraint("Vertical", 6),
    Sketcher.Constraint("Horizontal", 7),
    Sketcher.Constraint("Vertical", 8),
    Sketcher.Constraint("Horizontal", 9),
    Sketcher.Constraint("Vertical", 10),
    Sketcher.Constraint("Horizontal", 11),
    Sketcher.Constraint("Vertical", 12),
    Sketcher.Constraint("Horizontal", 13),
    Sketcher.Constraint("Vertical", 14),
    Sketcher.Constraint("Horizontal", 15),
    Sketcher.Constraint("Symmetric", 2, 2, 8, 2, -1, 1),
    Sketcher.Constraint("Symmetric", 0, 2, 10, 2, -1, 1),
    Sketcher.Constraint("Symmetric", 6, 2, 12, 2, -1, 1),
    Sketcher.Constraint("Symmetric", 4, 2, 14, 2, -1, 1),
    Sketcher.Constraint("Symmetric", 1, 2, 4, 2, -2),
    Sketcher.Constraint("Symmetric", 3, 2, 6, 2, -2),
    Sketcher.Constraint("DistanceX", 1, 1, 1, 2, Q("3 mm")),
    Sketcher.Constraint("DistanceY", 0, 2, 0, 1, Q("10 mm")),
    Sketcher.Constraint("DistanceY", -1, 1, 0, 2, Q("150 mm")),
    Sketcher.Constraint("DistanceX", 1, 2, 4, 2, Q("3 mm")),
])
pocket3 = body.newObject("PartDesign::Pocket", "Pocket002")
pocket3.Profile = sketch5
pocket3.Length = 25

# Sketch on XY plane
sketch6 = body.newObject("Sketcher::SketchObject", "Sketch005")
sketch6.AttachmentSupport = (doc.getObject("XY_Plane"), [""])
sketch6.MapMode = "FlatFace"
sketch6.AttachmentOffset = App.Placement(Vector(0, 0, 3), App.Rotation())
sketch6.addGeometry([
    Part.LineSegment(Vector(-19.5, -153.5, 0), Vector(-19.5, -156.5, 0)),  # 0
    Part.LineSegment(Vector(-19.5, -156.5, 0), Vector(-12, -156.5, 0)),  # 1
    Part.LineSegment(Vector(-12, -156.5, 0), Vector(-12, -153.5, 0)),  # 2
    Part.LineSegment(Vector(-12, -153.5, 0), Vector(-19.5, -153.5, 0)),  # 3
    Part.LineSegment(Vector(12, -153.5, 0), Vector(12, -156.5, 0)),  # 4
    Part.LineSegment(Vector(12, -156.5, 0), Vector(19.5, -156.5, 0)),  # 5
    Part.LineSegment(Vector(19.5, -156.5, 0), Vector(19.5, -153.5, 0)),  # 6
    Part.LineSegment(Vector(19.5, -153.5, 0), Vector(12, -153.5, 0)),  # 7
    Part.LineSegment(Vector(-19.5, 156.5, 0), Vector(-19.5, 153.5, 0)),  # 8
    Part.LineSegment(Vector(-19.5, 153.5, 0), Vector(-12, 153.5, 0)),  # 9
    Part.LineSegment(Vector(-12, 153.5, 0), Vector(-12, 156.5, 0)),  # 10
    Part.LineSegment(Vector(-12, 156.5, 0), Vector(-19.5, 156.5, 0)),  # 11
    Part.LineSegment(Vector(12, 156.5, 0), Vector(12, 153.5, 0)),  # 12
    Part.LineSegment(Vector(12, 153.5, 0), Vector(19.5, 153.5, 0)),  # 13
    Part.LineSegment(Vector(19.5, 153.5, 0), Vector(19.5, 156.5, 0)),  # 14
    Part.LineSegment(Vector(19.5, 156.5, 0), Vector(12, 156.5, 0)),  # 15
], False)
sketch6.addConstraint([
    Sketcher.Constraint("Coincident", 0, 2, 1, 1),
    Sketcher.Constraint("Coincident", 1, 2, 2, 1),
    Sketcher.Constraint("Coincident", 2, 2, 3, 1),
    Sketcher.Constraint("Coincident", 3, 2, 0, 1),
    Sketcher.Constraint("Coincident", 4, 2, 5, 1),
    Sketcher.Constraint("Coincident", 5, 2, 6, 1),
    Sketcher.Constraint("Coincident", 6, 2, 7, 1),
    Sketcher.Constraint("Coincident", 7, 2, 4, 1),
    Sketcher.Constraint("Coincident", 8, 2, 9, 1),
    Sketcher.Constraint("Coincident", 9, 2, 10, 1),
    Sketcher.Constraint("Coincident", 10, 2, 11, 1),
    Sketcher.Constraint("Coincident", 11, 2, 8, 1),
    Sketcher.Constraint("Coincident", 12, 2, 13, 1),
    Sketcher.Constraint("Coincident", 13, 2, 14, 1),
    Sketcher.Constraint("Coincident", 14, 2, 15, 1),
    Sketcher.Constraint("Coincident", 15, 2, 12, 1),
    Sketcher.Constraint("Vertical", 0),
    Sketcher.Constraint("Horizontal", 1),
    Sketcher.Constraint("Vertical", 2),
    Sketcher.Constraint("Horizontal", 3),
    Sketcher.Constraint("Vertical", 4),
    Sketcher.Constraint("Horizontal", 5),
    Sketcher.Constraint("Vertical", 6),
    Sketcher.Constraint("Horizontal", 7),
    Sketcher.Constraint("Vertical", 8),
    Sketcher.Constraint("Horizontal", 9),
    Sketcher.Constraint("Vertical", 10),
    Sketcher.Constraint("Horizontal", 11),
    Sketcher.Constraint("Vertical", 12),
    Sketcher.Constraint("Horizontal", 13),
    Sketcher.Constraint("Vertical", 14),
    Sketcher.Constraint("Horizontal", 15),
    Sketcher.Constraint("Symmetric", 6, 2, 8, 2, -1, 1),
    Sketcher.Constraint("Symmetric", 4, 2, 10, 2, -1, 1),
    Sketcher.Constraint("Symmetric", 2, 2, 12, 2, -1, 1),
    Sketcher.Constraint("Symmetric", 0, 2, 14, 2, -1, 1),
    Sketcher.Constraint("Symmetric", 1, 2, 4, 2, -2),
    Sketcher.Constraint("Symmetric", 3, 2, 6, 2, -2),
    Sketcher.Constraint("DistanceY", 0, 2, 0, 1, Q("3 mm")),
    Sketcher.Constraint("DistanceX", 1, 1, 1, 2, Q("7.5 mm")),
    Sketcher.Constraint("DistanceX", 1, 2, -1, 1, Q("12 mm")),
    Sketcher.Constraint("DistanceY", 3, 2, 8, 2, Q("307 mm")),
])
pocket4 = body.newObject("PartDesign::Pocket", "Pocket003")
pocket4.Profile = sketch6
pocket4.Length = 25

doc.recompute()
